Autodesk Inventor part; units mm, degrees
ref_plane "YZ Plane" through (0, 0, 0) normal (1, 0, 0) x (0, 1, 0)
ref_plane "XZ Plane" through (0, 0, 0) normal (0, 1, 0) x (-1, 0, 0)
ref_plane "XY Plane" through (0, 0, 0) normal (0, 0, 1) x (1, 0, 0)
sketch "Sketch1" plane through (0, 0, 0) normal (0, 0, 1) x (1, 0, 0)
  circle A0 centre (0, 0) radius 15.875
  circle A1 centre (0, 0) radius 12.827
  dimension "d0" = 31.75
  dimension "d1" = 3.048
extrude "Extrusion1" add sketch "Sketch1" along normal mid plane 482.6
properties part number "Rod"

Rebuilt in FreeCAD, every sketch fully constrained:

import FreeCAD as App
import Part
import Sketcher
Q = App.Units.Quantity

doc = App.newDocument("Part")
body = doc.addObject("PartDesign::Body", "Body")

# Sketch on XY plane
sketch1 = doc.addObject("Sketcher::SketchObject", "Sketch")
body.addObject(sketch1)
sketch1.AttachmentSupport = (doc.XY_Plane, [""])
sketch1.MapMode = "FlatFace"
sketch1.addGeometry(Part.Circle(App.Vector(0, 0, 0), App.Vector(0, 0, 1), 16), False)
sketch1.addGeometry(Part.Circle(App.Vector(0, 0, 0), App.Vector(0, 0, 1), 13), False)
sketch1.addConstraint(Sketcher.Constraint("Coincident", 0, 3, -1, 1))
sketch1.addConstraint(Sketcher.Constraint("Coincident", 1, 3, -1, 1))
sketch1.addConstraint(Sketcher.Constraint("Diameter", 0, Q("1.25 in")))
sketch1.addConstraint(Sketcher.Constraint("Diameter", 1, Q("1.01 in")))
pad1 = doc.addObject("PartDesign::Pad", "Pad")
body.addObject(pad1)
pad1.Profile = sketch1
pad1.Length = Q("19 in")
pad1.Midplane = True

doc.recompute()
